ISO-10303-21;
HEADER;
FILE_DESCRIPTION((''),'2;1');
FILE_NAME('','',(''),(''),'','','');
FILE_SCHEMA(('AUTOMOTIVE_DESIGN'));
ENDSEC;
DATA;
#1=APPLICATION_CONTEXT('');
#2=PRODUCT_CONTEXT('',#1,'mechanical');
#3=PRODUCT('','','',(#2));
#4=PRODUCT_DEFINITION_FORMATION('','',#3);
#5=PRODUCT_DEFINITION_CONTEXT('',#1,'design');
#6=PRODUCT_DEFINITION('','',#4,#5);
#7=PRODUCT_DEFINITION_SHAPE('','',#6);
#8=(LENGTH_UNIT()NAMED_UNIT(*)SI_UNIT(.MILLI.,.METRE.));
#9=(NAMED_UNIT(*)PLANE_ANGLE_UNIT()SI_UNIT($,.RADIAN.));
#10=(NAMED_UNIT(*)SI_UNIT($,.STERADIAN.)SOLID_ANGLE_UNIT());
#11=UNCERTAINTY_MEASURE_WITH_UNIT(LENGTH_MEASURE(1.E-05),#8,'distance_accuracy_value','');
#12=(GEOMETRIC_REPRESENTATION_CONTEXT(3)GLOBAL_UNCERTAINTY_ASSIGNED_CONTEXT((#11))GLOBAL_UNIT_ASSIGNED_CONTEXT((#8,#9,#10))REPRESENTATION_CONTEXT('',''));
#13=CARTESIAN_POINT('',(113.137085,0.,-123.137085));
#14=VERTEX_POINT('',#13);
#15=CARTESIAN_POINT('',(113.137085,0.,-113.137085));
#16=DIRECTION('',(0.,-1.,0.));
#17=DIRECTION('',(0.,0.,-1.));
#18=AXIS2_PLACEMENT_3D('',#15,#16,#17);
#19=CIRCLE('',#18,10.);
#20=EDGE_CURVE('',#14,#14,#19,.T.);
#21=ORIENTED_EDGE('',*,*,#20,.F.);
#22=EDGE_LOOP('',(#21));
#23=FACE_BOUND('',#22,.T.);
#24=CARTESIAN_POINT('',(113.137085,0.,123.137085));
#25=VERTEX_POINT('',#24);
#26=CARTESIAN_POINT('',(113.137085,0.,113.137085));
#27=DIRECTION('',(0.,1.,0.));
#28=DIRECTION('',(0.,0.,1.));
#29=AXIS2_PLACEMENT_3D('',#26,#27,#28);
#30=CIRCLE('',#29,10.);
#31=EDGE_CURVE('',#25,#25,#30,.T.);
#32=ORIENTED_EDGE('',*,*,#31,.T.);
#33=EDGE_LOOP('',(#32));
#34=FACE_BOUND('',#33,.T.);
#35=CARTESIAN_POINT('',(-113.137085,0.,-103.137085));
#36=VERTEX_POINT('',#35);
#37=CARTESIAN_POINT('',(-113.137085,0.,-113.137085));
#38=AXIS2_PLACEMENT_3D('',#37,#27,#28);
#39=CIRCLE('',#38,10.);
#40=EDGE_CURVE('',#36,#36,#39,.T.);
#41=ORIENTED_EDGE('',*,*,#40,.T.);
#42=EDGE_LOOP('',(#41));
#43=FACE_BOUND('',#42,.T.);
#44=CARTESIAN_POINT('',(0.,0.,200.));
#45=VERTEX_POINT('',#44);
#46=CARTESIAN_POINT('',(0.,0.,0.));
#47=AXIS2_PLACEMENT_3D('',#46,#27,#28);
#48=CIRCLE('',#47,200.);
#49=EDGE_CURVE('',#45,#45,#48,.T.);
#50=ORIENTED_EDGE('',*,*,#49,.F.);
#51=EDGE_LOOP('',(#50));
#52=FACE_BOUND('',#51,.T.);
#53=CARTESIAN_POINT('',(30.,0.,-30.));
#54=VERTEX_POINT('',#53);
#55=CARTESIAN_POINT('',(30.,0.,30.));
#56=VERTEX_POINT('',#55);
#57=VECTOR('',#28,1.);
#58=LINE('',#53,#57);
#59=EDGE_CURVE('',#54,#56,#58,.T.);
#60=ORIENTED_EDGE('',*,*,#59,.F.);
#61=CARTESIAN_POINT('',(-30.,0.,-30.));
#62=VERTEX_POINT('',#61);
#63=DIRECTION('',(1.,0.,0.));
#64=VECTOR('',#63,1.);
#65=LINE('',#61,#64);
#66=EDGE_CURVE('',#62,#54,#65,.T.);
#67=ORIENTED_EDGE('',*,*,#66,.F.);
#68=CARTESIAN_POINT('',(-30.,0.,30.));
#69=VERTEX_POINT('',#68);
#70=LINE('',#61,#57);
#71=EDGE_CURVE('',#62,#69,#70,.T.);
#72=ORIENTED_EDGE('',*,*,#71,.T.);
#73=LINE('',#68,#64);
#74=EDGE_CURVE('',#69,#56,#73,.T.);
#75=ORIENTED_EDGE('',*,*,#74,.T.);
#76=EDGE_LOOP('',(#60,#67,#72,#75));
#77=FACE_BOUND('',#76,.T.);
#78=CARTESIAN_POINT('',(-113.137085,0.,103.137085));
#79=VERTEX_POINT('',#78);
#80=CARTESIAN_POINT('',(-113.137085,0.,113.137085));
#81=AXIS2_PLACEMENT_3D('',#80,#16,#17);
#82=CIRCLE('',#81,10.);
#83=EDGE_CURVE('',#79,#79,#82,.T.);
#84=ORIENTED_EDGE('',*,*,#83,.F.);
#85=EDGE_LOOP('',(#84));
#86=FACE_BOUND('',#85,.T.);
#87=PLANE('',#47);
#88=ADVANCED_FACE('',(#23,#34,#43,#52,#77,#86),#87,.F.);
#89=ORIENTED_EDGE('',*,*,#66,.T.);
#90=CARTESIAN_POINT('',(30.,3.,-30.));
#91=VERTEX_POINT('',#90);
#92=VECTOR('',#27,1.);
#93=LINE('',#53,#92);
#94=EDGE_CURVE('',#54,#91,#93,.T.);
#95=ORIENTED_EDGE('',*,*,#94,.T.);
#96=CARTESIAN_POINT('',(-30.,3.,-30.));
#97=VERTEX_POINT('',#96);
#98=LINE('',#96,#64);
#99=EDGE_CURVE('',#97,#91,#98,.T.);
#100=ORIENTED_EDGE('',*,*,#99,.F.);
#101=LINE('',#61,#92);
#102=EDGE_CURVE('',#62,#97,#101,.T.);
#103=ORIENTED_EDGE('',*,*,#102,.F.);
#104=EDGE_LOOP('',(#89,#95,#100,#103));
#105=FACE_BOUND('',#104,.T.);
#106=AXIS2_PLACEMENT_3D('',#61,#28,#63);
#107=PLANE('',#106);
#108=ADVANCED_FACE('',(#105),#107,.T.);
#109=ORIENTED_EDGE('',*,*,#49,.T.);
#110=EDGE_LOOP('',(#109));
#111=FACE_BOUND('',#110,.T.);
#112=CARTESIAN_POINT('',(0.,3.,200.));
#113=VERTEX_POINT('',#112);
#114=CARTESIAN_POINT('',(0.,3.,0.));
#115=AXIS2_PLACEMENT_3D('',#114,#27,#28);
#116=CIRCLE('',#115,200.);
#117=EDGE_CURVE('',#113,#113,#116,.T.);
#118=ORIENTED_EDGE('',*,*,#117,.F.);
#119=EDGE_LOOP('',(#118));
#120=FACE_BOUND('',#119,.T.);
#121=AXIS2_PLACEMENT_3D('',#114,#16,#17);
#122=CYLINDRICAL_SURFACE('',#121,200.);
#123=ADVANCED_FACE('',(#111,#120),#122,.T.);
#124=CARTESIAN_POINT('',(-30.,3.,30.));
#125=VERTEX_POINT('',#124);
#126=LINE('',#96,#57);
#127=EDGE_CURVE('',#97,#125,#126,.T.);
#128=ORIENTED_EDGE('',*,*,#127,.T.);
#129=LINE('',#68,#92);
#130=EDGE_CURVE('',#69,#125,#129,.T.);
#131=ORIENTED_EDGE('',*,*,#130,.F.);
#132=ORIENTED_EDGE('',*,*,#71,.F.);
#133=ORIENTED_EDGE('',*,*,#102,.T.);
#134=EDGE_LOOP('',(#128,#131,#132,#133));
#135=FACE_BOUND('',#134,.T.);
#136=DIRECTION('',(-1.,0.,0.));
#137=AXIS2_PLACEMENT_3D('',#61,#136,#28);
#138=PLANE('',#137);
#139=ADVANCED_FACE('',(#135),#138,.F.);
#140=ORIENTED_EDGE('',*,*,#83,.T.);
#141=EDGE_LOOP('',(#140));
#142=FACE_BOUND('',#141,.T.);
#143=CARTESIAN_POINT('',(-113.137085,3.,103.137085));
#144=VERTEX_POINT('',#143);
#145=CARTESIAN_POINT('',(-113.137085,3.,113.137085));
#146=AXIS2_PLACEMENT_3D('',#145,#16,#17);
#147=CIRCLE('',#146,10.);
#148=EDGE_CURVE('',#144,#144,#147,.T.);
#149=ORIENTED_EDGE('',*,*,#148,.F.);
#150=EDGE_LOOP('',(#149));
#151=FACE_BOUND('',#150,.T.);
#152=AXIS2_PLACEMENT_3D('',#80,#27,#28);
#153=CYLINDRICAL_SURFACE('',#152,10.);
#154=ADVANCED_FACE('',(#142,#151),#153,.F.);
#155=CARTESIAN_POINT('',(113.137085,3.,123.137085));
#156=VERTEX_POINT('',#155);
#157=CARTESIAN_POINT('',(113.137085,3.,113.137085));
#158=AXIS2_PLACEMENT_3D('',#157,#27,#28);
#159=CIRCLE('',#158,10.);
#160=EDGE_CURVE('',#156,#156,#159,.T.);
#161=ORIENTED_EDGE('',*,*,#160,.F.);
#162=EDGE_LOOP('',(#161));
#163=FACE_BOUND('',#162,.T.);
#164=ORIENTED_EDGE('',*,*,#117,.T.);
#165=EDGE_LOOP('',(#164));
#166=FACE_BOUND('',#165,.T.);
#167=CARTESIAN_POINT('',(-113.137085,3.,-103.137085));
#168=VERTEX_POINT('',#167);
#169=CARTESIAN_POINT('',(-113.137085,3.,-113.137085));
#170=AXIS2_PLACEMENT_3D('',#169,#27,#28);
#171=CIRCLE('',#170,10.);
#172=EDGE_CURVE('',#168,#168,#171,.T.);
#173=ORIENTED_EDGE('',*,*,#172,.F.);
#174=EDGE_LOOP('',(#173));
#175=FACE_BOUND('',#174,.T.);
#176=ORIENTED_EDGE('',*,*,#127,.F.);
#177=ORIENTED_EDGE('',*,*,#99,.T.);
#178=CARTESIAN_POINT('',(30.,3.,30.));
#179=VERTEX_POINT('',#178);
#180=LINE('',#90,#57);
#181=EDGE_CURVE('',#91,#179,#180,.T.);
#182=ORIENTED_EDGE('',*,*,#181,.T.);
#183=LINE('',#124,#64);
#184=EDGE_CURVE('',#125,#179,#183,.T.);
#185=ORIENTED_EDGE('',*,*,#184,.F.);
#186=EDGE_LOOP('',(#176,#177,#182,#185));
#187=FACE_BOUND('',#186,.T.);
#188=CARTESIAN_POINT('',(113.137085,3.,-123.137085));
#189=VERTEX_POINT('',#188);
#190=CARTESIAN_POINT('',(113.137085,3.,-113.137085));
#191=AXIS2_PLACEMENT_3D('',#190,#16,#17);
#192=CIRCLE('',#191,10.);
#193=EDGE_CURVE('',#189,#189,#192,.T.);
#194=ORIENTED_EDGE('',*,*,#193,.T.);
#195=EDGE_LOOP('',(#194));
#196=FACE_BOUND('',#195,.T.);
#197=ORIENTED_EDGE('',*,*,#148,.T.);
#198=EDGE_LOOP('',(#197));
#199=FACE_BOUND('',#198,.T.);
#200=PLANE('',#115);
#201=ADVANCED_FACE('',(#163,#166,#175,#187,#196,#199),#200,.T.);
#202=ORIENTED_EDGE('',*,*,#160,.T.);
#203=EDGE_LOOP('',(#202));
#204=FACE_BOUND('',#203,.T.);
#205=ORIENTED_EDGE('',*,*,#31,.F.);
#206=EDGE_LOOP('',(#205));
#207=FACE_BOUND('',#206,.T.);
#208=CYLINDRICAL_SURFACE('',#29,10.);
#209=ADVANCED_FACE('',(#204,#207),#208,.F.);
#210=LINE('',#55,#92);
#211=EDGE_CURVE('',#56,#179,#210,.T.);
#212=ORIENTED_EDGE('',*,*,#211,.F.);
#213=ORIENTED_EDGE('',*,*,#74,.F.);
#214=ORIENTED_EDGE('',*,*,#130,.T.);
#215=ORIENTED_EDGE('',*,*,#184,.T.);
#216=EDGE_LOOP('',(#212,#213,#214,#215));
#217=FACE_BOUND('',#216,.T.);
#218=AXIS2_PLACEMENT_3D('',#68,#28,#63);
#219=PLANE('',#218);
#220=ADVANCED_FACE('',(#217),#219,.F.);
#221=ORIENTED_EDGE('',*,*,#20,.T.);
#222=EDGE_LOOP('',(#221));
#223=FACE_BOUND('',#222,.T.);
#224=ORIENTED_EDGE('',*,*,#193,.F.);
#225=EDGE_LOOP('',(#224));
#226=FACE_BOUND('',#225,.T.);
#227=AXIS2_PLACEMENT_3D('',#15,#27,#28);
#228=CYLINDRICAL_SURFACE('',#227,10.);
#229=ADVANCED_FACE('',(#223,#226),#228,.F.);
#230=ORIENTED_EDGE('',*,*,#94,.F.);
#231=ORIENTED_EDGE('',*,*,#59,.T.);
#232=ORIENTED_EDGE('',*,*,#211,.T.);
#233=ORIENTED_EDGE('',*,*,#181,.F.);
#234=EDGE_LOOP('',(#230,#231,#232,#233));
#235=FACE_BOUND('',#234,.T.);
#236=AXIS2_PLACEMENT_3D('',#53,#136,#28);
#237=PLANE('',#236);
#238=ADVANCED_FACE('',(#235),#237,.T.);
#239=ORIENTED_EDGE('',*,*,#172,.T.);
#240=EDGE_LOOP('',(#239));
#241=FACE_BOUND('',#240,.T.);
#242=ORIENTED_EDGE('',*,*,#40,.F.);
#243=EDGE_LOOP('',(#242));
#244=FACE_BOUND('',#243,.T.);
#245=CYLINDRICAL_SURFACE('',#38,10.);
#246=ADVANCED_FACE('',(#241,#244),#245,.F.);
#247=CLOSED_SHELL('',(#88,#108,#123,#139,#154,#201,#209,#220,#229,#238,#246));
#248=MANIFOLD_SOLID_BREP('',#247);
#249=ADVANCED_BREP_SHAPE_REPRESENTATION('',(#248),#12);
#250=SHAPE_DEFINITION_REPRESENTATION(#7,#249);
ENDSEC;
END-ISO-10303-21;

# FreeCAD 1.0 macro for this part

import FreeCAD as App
import Part
import Sketcher

V = App.Vector


def add_polygon(sketch, points):
    """Adds a closed chain of lines whose ends are joined by coincident constraints."""
    first, n = sketch.GeometryCount, len(points)
    for a, b in zip(points, points[1:] + points[:1]):
        sketch.addGeometry(Part.LineSegment(App.Vector(*a, 0), App.Vector(*b, 0)), False)
    for i in range(n):
        sketch.addConstraint(Sketcher.Constraint("Coincident", first + i, 2, first + (i + 1) % n, 1))

doc = App.newDocument("Part")
body = doc.addObject("PartDesign::Body", "Body")

# Sketch on XZ plane
sketch1 = body.newObject("Sketcher::SketchObject", "Sketch")
sketch1.AttachmentSupport = (doc.getObject("XZ_Plane"), [""])
sketch1.MapMode = "FlatFace"
sketch1.addGeometry(Part.Circle(V(0, 0, 0), V(0, 0, 1), 200), False)
sketch1.addConstraint([
    Sketcher.Constraint("Coincident", 0, 3, -1, 1),
    Sketcher.Constraint("Diameter", 0, 400.0),
])
pad1 = body.newObject("PartDesign::Pad", "Pad")
pad1.Profile = sketch1
pad1.Length = 3
pad1.Reversed = True

# Sketch on XZ plane
sketch2 = body.newObject("Sketcher::SketchObject", "Sketch001")
sketch2.AttachmentSupport = (doc.getObject("XZ_Plane"), [""])
sketch2.MapMode = "FlatFace"
sketch2.AttachmentOffset = App.Placement(V(0, 0, -3), App.Rotation())
sketch2.addGeometry([
    Part.Circle(V(-113.137085, -113.137085, 0), V(0, 0, 1), 10),
    Part.Circle(V(-113.137085, 113.137085, 0), V(0, 0, 1), 10),
    Part.Circle(V(113.137085, 113.137085, 0), V(0, 0, 1), 10),
    Part.Circle(V(113.137085, -113.137085, 0), V(0, 0, 1), 10),
], False)
sketch2.addConstraint([
    Sketcher.Constraint("Equal", 0, 1),
    Sketcher.Constraint("Equal", 1, 2),
    Sketcher.Constraint("Equal", 2, 3),
    Sketcher.Constraint("Symmetric", 0, 3, 2, 3, -1, 1),
    Sketcher.Constraint("Symmetric", 1, 3, 3, 3, -1, 1),
    Sketcher.Constraint("Symmetric", 1, 3, 2, 3, -2),
    Sketcher.Constraint("Diameter", 0, 20.0),
    Sketcher.Constraint("DistanceY", 0, 3, 1, 3, 226.27417),
    Sketcher.Constraint("DistanceX", 1, 3, 2, 3, 226.27417),
])
pocket1 = body.newObject("PartDesign::Pocket", "Pocket")
pocket1.Profile = sketch2
pocket1.Length = 3
pocket1.Reversed = True

# Sketch on XZ plane
sketch3 = body.newObject("Sketcher::SketchObject", "Sketch002")
sketch3.AttachmentSupport = (doc.getObject("XZ_Plane"), [""])
sketch3.MapMode = "FlatFace"
sketch3.AttachmentOffset = App.Placement(V(0, 0, -3), App.Rotation())
add_polygon(sketch3, [(-30, -30), (-30, 30), (30, 30), (30, -30)])  # lines 0-3
sketch3.addConstraint([
    Sketcher.Constraint("Vertical", 0),
    Sketcher.Constraint("Horizontal", 1),
    Sketcher.Constraint("Vertical", 2),
    Sketcher.Constraint("Horizontal", 3),
    Sketcher.Constraint("Symmetric", 0, 2, 2, 2, -1, 1),
    Sketcher.Constraint("Equal", 3, 0),
    Sketcher.Constraint("DistanceX", 1, 1, 1, 2, 60.0),
])
pocket2 = body.newObject("PartDesign::Pocket", "Pocket001")
pocket2.Profile = sketch3
pocket2.Length = 3
pocket2.Reversed = True

doc.recompute()
